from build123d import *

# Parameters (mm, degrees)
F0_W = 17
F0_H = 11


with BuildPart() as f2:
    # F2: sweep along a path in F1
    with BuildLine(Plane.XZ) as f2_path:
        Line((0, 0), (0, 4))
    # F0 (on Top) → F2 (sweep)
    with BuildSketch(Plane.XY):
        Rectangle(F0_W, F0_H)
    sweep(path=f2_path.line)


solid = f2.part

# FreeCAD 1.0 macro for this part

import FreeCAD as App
import Part
import Sketcher
from FreeCAD import Vector

doc = App.newDocument("Part")
body = doc.addObject("PartDesign::Body", "Body")

sketch1 = doc.addObject("Sketcher::SketchObject", "Sketch")
body.addObject(sketch1)
sketch1.AttachmentSupport = (doc.XY_Plane, [""])
sketch1.MapMode = "FlatFace"
sketch1.addGeometry(Part.LineSegment(Vector(-8.5, 5.5, 0), Vector(-8.5, -5.5, 0)), False)
sketch1.addGeometry(Part.LineSegment(Vector(-8.5, -5.5, 0), Vector(8.5, -5.5, 0)), False)
sketch1.addGeometry(Part.LineSegment(Vector(8.5, -5.5, 0), Vector(8.5, 5.5, 0)), False)
sketch1.addGeometry(Part.LineSegment(Vector(8.5, 5.5, 0), Vector(-8.5, 5.5, 0)), False)
sketch1.addConstraint(Sketcher.Constraint("Coincident", 0, 2, 1, 1))
sketch1.addConstraint(Sketcher.Constraint("Coincident", 1, 2, 2, 1))
sketch1.addConstraint(Sketcher.Constraint("Coincident", 2, 2, 3, 1))
sketch1.addConstraint(Sketcher.Constraint("Coincident", 3, 2, 0, 1))
sketch1.addConstraint(Sketcher.Constraint("Vertical", 0))
sketch1.addConstraint(Sketcher.Constraint("Horizontal", 1))
sketch1.addConstraint(Sketcher.Constraint("Vertical", 2))
sketch1.addConstraint(Sketcher.Constraint("Horizontal", 3))
sketch1.addConstraint(Sketcher.Constraint("Symmetric", 0, 2, 2, 2, -1, 1))
sketch1.addConstraint(Sketcher.Constraint("DistanceX", 1, 1, 1, 2, 17.0))
sketch1.addConstraint(Sketcher.Constraint("DistanceY", 0, 2, 0, 1, 11.0))

sketch2 = doc.addObject("Sketcher::SketchObject", "Sketch001")
body.addObject(sketch2)
sketch2.AttachmentSupport = (doc.XZ_Plane, [""])
sketch2.MapMode = "FlatFace"
sketch2.addGeometry(Part.LineSegment(Vector(0, 0, 0), Vector(0, 4, 0)), False)
sketch2.addConstraint(Sketcher.Constraint("Vertical", 0))
sketch2.addConstraint(Sketcher.Constraint("Coincident", 0, 1, -1, 1))
sketch2.addConstraint(Sketcher.Constraint("DistanceY", 0, 1, 0, 2, 4.0))
doc.recompute()

additivepipe = doc.addObject("PartDesign::AdditivePipe", "AdditivePipe")
body.addObject(additivepipe)
additivepipe.Profile = sketch1
additivepipe.Spine = (sketch2, ["Edge1"])

doc.recompute()
